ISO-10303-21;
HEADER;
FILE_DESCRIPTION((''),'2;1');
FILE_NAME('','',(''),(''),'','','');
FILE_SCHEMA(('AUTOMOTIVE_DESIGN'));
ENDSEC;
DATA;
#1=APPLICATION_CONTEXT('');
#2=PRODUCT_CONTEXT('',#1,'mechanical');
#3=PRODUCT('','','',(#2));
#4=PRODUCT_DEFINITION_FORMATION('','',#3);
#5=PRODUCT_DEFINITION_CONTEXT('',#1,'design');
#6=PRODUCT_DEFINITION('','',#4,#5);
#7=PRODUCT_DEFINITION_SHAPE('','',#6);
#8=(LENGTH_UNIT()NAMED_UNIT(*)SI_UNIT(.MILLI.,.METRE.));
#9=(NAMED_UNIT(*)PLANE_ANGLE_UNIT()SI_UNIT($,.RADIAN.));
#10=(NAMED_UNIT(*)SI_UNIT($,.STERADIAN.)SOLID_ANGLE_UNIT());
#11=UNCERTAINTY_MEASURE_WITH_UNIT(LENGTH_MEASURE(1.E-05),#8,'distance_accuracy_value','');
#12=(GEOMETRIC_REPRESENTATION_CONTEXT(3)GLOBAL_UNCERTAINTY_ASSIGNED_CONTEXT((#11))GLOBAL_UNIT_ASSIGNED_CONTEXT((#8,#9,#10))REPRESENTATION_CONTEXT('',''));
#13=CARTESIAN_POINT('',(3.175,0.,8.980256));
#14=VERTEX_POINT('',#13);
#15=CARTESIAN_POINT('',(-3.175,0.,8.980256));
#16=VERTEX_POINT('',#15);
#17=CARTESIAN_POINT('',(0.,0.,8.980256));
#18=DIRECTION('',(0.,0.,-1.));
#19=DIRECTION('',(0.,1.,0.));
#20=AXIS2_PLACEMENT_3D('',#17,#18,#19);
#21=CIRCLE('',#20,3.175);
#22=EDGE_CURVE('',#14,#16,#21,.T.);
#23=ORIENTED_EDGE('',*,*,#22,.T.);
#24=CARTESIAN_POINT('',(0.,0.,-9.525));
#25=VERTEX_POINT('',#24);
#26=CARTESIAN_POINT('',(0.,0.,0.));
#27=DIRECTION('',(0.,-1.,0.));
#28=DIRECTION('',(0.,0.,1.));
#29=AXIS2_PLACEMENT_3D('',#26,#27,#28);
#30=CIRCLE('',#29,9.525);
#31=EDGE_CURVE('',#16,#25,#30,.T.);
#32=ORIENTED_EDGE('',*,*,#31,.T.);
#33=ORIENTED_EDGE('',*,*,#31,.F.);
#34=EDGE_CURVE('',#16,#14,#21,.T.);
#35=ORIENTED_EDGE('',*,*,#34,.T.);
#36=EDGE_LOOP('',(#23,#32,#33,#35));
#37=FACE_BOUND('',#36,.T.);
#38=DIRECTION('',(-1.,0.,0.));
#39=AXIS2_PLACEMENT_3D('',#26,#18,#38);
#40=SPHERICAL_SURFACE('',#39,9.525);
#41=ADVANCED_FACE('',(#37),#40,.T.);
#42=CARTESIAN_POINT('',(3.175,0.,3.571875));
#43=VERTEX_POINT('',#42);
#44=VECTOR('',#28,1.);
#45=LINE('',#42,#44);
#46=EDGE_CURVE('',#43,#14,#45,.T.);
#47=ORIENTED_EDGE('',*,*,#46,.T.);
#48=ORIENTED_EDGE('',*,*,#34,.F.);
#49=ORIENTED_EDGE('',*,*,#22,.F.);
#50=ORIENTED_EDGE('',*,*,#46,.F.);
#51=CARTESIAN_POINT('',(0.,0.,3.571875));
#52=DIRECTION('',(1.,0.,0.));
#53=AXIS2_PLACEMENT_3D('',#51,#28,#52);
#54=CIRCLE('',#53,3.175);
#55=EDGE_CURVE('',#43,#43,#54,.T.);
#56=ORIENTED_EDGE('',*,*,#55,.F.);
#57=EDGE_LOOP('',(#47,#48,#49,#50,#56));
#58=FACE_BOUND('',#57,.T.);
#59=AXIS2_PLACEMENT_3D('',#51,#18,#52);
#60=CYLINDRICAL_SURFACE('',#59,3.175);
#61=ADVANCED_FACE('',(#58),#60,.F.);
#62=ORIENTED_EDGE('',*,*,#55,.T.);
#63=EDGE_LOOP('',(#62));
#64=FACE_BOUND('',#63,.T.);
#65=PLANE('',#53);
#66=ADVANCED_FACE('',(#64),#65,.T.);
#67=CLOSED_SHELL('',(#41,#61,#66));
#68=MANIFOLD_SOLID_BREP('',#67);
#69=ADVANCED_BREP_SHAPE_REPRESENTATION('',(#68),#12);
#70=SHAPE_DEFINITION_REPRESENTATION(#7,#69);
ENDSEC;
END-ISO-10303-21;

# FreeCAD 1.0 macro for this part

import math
import FreeCAD as App
import Part
import Sketcher

V = App.Vector
Q = App.Units.Quantity

doc = App.newDocument("Part")
params = doc.addObject("Spreadsheet::Sheet", "Params")
for row, (alias, value) in enumerate([
    ("sketch1_radius", "0.375 in"),
    ("revolution_angle", "360 deg"),
    ("sketch2_diameter", "0.25 in"),
    ("pocket1_length", "1 in"),
], start=1):
    params.set(f"A{row}", alias)
    params.set(f"B{row}", "=" + value)
    params.setAlias(f"B{row}", alias)

body = doc.addObject("PartDesign::Body", "Body")

# Sketch on XZ plane
sketch1 = body.newObject("Sketcher::SketchObject", "Sketch")
sketch1.AttachmentSupport = (doc.getObject("XZ_Plane"), [""])
sketch1.MapMode = "FlatFace"
sketch1.addGeometry(Part.LineSegment(V(0, -10, 0), V(0, 10, 0)), False)
sketch1.addGeometry(Part.ArcOfCircle(Part.Circle(V(0, 0, 0), V(0, 0, 1), 10), math.radians(90), math.radians(270)), False)
sketch1.addConstraint(Sketcher.Constraint("Coincident", 0, 1, 1, 2))
sketch1.addConstraint(Sketcher.Constraint("Coincident", 1, 1, 0, 2))
sketch1.addConstraint(Sketcher.Constraint("Vertical", 0))
sketch1.addConstraint(Sketcher.Constraint("Coincident", 1, 3, -1, 1))
sketch1.addConstraint(Sketcher.Constraint("PointOnObject", 0, 1, -2))
sketch1.addConstraint(Sketcher.Constraint("Radius", 1, Q("0.375 in")))
sketch1.setExpression("Constraints[5]", "Params.sketch1_radius")
revolution = body.newObject("PartDesign::Revolution", "Revolution")
revolution.Profile = sketch1
revolution.ReferenceAxis = (sketch1, ["V_Axis"])
revolution.setExpression("Angle", "Params.revolution_angle")

# Sketch on XY plane
sketch2 = body.newObject("Sketcher::SketchObject", "Sketch001")
sketch2.AttachmentSupport = (doc.getObject("XY_Plane"), [""])
sketch2.MapMode = "FlatFace"
sketch2.AttachmentOffset = App.Placement(V(0, 0, 0.140625 * 25.4), App.Rotation())
sketch2.addGeometry(Part.Circle(V(0, 0, 0), V(0, 0, 1), 3.2), False)
sketch2.addConstraint(Sketcher.Constraint("Coincident", 0, 3, -1, 1))
sketch2.addConstraint(Sketcher.Constraint("Diameter", 0, Q("0.25 in")))
sketch2.setExpression("Constraints[1]", "Params.sketch2_diameter")
pocket1 = body.newObject("PartDesign::Pocket", "Pocket")
pocket1.Profile = sketch2
pocket1.setExpression("Length", "Params.pocket1_length")
pocket1.Reversed = True

doc.recompute()
